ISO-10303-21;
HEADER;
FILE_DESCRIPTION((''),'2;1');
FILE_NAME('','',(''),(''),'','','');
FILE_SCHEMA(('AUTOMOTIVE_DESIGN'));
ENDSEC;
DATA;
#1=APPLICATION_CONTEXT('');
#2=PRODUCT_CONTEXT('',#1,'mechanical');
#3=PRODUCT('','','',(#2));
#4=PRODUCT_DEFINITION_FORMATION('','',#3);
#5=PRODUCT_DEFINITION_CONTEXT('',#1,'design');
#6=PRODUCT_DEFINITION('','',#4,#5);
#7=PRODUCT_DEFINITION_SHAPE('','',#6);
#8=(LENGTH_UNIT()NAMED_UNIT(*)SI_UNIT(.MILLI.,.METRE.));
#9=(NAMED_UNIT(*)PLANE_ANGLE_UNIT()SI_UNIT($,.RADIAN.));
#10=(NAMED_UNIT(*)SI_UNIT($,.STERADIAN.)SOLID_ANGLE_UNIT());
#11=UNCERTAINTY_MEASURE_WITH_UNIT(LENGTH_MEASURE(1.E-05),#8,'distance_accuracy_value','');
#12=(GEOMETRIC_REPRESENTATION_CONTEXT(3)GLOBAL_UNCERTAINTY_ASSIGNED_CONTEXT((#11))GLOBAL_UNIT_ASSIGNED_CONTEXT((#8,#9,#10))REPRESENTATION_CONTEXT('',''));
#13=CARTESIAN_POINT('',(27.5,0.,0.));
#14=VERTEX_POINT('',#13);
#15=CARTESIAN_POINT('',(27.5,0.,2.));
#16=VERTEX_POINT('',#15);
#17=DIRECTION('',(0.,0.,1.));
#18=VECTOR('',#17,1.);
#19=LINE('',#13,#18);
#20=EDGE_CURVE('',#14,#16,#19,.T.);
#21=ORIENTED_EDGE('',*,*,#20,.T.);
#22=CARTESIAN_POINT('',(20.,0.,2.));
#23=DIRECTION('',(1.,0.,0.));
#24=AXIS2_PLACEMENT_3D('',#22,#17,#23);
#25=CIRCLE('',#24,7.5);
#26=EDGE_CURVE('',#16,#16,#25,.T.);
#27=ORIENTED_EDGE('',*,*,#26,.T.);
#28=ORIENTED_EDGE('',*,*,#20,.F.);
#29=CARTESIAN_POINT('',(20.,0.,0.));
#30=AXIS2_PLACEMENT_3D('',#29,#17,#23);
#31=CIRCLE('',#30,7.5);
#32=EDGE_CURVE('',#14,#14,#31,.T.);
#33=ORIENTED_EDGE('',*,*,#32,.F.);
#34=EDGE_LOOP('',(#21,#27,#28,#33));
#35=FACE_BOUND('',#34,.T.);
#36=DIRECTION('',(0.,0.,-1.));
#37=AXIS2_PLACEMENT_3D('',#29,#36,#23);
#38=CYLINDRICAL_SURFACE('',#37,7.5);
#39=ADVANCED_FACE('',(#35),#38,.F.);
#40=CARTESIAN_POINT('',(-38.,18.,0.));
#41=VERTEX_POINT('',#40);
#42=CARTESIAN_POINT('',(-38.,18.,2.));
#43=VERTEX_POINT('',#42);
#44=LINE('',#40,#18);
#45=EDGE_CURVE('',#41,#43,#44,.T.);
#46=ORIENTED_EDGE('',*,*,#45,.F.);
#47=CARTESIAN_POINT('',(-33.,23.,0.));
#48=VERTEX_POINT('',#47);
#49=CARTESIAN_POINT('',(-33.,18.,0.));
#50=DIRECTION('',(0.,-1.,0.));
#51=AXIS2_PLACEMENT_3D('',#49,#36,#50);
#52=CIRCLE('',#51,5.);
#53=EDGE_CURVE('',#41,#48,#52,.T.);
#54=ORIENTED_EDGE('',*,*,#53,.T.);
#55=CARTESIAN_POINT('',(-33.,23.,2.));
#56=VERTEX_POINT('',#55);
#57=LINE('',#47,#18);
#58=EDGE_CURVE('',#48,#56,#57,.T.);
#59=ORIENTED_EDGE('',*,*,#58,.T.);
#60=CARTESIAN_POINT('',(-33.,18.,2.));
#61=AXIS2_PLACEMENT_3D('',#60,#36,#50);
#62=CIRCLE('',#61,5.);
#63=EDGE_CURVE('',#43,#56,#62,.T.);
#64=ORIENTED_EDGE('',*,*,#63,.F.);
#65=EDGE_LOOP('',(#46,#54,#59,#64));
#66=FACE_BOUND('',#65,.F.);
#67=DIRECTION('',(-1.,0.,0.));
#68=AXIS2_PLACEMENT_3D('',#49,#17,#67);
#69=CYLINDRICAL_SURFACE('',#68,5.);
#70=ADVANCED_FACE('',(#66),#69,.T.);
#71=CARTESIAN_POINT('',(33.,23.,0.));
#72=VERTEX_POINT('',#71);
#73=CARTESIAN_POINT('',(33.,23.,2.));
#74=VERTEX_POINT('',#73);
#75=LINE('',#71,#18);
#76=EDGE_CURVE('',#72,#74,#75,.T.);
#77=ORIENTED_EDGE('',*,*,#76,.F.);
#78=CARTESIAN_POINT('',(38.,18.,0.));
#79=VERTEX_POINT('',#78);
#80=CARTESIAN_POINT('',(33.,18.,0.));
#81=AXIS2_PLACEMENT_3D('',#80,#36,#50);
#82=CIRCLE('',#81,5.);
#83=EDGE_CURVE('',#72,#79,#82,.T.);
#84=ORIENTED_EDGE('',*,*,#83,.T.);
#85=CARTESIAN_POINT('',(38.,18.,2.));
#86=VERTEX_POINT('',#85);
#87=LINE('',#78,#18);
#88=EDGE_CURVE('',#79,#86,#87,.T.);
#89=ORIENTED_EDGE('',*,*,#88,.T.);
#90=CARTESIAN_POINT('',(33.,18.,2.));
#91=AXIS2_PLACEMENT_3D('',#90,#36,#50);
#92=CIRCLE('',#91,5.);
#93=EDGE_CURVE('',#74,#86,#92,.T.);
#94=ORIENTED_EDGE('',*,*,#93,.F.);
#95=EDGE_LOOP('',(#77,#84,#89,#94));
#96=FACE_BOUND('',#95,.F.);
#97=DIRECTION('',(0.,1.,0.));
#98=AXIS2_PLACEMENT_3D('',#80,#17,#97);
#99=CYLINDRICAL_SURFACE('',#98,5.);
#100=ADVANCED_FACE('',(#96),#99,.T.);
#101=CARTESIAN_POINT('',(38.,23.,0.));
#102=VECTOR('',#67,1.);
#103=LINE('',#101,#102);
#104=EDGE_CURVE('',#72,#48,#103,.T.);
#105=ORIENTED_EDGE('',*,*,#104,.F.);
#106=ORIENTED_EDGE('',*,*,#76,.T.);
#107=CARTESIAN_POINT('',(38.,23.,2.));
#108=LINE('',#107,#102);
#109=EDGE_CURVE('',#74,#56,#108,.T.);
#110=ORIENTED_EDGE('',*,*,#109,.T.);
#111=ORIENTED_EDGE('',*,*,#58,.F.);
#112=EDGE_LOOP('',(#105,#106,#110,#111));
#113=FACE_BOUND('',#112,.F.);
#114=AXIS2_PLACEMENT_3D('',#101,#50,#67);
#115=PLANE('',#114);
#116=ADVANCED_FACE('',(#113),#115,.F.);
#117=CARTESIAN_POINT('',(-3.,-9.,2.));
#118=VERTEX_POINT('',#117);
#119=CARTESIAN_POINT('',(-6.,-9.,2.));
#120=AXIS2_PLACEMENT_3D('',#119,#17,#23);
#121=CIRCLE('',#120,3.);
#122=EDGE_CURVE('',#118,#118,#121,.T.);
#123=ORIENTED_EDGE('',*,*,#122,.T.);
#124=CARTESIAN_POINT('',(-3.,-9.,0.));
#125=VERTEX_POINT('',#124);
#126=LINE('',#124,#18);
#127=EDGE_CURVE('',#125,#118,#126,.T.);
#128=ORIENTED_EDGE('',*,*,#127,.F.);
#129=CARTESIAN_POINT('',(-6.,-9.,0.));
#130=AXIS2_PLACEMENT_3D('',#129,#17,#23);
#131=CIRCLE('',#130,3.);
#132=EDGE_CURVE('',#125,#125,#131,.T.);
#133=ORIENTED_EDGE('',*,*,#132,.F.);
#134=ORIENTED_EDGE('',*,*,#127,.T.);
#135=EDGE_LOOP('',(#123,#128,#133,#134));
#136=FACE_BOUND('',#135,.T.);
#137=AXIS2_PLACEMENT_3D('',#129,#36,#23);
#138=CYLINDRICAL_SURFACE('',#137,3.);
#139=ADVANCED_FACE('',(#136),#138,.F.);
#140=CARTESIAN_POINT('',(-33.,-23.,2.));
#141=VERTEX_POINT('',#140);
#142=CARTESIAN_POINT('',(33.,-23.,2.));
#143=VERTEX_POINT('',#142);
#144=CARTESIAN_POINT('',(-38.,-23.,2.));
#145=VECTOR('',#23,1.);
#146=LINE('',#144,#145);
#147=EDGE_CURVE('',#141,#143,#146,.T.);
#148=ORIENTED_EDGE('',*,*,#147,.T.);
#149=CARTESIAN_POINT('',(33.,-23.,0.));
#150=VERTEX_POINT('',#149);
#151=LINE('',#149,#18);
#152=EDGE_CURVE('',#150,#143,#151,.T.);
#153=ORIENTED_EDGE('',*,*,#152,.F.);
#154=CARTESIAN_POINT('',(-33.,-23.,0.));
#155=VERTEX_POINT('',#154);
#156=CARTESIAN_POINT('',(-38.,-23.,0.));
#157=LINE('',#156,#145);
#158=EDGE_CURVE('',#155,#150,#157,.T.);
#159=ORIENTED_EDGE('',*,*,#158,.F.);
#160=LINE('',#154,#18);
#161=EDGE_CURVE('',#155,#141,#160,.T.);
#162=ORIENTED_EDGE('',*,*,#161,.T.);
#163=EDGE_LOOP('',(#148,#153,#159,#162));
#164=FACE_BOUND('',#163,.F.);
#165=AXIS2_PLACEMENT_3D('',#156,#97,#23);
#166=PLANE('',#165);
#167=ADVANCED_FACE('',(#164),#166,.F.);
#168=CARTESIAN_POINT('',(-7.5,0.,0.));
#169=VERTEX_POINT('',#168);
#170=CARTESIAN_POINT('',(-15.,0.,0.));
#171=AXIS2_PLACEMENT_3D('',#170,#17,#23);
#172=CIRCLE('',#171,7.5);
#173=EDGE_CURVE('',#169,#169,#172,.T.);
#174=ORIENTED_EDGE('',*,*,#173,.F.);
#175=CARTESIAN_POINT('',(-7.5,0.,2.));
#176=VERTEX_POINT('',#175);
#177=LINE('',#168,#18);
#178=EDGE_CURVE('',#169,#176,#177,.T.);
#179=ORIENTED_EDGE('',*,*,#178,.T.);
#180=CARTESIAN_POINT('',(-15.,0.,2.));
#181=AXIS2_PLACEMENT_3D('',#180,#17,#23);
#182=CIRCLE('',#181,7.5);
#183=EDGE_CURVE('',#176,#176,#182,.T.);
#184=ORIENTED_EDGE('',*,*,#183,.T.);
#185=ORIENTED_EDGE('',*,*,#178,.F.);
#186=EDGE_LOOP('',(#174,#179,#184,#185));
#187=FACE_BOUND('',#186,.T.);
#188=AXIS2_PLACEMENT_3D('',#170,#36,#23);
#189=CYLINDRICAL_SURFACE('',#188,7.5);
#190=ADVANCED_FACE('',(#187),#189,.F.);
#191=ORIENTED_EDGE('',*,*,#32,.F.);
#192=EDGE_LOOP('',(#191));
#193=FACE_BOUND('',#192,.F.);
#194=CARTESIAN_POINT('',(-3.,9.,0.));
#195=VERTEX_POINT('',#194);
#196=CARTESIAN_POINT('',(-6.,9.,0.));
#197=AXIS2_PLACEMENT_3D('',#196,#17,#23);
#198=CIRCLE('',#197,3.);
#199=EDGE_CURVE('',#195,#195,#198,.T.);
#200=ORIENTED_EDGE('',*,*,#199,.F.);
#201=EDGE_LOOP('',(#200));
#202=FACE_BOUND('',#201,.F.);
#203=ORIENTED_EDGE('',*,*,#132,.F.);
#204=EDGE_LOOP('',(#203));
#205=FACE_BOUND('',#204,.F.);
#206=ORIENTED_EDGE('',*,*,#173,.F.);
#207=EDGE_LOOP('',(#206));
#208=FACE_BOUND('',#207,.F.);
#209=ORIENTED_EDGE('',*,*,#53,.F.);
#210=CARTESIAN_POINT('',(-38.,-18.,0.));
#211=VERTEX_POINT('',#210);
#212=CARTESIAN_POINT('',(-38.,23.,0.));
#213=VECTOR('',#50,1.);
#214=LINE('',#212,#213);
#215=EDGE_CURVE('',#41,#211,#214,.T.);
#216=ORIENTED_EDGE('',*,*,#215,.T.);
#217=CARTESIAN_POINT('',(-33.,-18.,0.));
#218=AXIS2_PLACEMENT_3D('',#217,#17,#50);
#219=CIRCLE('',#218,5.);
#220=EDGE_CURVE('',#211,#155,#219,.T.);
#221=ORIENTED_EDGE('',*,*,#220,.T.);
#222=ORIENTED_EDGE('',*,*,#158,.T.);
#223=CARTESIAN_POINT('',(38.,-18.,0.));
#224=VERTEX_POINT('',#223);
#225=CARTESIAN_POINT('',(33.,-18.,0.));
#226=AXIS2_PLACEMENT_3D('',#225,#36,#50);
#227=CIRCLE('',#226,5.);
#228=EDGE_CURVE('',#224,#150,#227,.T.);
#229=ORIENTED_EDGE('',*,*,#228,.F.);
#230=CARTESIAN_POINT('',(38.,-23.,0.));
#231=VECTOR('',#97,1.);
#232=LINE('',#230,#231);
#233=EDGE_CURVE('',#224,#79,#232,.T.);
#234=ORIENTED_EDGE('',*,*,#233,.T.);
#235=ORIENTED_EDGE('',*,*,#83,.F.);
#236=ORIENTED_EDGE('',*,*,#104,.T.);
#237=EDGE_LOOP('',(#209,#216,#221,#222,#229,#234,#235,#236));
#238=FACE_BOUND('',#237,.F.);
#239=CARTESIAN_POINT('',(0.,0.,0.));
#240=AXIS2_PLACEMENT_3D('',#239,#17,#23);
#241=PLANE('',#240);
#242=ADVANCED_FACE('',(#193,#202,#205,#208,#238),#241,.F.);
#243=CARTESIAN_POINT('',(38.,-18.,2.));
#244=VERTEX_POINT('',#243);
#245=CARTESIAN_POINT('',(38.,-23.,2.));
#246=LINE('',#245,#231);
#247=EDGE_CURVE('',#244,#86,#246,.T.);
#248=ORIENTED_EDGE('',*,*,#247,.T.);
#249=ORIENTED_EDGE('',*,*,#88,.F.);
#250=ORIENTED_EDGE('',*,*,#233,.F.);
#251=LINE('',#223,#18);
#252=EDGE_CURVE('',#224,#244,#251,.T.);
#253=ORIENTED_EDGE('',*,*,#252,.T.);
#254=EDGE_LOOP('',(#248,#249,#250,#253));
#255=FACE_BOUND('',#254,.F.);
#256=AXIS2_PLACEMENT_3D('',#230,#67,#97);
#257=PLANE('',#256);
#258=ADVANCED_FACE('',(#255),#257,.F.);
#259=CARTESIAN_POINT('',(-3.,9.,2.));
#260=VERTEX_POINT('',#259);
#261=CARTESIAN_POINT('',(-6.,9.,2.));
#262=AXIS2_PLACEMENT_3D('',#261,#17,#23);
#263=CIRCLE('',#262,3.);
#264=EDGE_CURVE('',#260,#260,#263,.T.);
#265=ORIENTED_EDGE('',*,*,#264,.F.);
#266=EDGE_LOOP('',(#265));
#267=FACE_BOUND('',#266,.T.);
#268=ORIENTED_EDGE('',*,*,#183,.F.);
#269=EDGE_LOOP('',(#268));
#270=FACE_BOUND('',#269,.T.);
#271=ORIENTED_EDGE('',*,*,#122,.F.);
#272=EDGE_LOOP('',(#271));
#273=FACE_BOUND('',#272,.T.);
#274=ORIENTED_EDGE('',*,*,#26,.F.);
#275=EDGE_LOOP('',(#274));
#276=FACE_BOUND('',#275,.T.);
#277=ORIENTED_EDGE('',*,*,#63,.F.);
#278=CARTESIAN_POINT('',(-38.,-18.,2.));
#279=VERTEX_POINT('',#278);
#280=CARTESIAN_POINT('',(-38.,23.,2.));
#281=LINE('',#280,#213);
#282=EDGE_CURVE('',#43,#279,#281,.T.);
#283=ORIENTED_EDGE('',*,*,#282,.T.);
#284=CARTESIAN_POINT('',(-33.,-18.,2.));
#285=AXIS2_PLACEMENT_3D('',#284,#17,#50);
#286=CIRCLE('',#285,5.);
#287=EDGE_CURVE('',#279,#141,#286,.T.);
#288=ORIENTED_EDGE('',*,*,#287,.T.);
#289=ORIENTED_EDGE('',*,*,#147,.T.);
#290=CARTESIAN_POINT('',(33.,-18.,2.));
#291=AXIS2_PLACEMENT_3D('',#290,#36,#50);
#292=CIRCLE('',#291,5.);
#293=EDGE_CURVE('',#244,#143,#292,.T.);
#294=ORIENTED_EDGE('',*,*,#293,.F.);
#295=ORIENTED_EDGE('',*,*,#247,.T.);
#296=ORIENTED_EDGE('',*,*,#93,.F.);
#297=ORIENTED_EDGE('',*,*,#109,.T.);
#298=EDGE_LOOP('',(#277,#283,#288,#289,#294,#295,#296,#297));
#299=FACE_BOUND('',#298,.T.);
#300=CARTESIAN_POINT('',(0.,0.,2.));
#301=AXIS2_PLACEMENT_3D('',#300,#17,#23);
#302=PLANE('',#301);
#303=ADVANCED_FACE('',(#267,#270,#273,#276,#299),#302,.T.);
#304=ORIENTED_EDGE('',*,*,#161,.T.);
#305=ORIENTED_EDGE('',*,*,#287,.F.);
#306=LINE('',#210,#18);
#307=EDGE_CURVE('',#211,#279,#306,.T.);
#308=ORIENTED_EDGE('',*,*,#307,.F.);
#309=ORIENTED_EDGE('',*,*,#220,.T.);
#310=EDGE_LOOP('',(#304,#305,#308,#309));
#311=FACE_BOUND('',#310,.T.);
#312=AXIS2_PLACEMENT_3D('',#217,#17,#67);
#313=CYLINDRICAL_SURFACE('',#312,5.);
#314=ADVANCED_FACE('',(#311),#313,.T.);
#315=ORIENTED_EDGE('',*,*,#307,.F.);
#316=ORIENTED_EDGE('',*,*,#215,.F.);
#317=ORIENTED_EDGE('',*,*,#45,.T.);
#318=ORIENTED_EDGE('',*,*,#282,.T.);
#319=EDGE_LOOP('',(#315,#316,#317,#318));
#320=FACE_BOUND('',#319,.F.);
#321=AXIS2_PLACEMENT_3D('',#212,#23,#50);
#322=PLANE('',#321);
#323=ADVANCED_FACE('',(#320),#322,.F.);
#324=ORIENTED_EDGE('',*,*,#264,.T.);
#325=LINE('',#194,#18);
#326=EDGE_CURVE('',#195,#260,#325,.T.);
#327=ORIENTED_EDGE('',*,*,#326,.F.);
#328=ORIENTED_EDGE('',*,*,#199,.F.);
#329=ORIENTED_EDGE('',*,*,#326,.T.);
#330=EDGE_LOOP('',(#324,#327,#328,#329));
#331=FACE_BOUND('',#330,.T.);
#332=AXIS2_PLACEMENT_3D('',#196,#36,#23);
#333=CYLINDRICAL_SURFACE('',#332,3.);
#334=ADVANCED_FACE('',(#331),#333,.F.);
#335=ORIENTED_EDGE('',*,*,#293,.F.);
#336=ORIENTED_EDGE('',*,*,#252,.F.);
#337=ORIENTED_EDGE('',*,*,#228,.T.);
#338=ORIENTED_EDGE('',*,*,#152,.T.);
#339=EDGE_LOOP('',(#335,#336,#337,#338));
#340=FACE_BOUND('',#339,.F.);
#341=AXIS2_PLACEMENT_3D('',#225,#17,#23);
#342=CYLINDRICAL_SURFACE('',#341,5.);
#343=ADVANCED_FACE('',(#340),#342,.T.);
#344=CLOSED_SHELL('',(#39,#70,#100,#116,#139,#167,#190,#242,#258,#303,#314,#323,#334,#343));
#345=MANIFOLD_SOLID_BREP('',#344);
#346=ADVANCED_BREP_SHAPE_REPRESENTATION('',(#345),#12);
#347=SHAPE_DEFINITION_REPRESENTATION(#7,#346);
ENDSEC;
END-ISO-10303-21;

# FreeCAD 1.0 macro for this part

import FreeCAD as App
import Part
import Sketcher

V = App.Vector


def edges_at(feature, points):
    """Names of the edges that pass closest to the given points."""
    edges = feature.Shape.Edges
    near = lambda p: min(range(len(edges)), key=lambda i: edges[i].distToShape(Part.Vertex(*p))[0])
    return sorted({f"Edge{near(p) + 1}" for p in points})

doc = App.newDocument("Part")
body = doc.addObject("PartDesign::Body", "Body")

# Sketch on XY plane
sketch1 = doc.addObject("Sketcher::SketchObject", "Sketch")
body.addObject(sketch1)
sketch1.AttachmentSupport = (doc.XY_Plane, [""])
sketch1.MapMode = "FlatFace"
sketch1.addGeometry([
    Part.LineSegment(V(-38, 23, 0), V(-38, -23, 0)),  # 0
    Part.LineSegment(V(-38, -23, 0), V(38, -23, 0)),  # 1
    Part.LineSegment(V(38, -23, 0), V(38, 23, 0)),  # 2
    Part.LineSegment(V(38, 23, 0), V(-38, 23, 0)),  # 3
    Part.Circle(V(-6, -9, 0), V(0, 0, 1), 3),  # 4
    Part.Circle(V(-15, 0, 0), V(0, 0, 1), 7.5),  # 5
    Part.Circle(V(-6, 9, 0), V(0, 0, 1), 3),  # 6
    Part.Circle(V(20, 0, 0), V(0, 0, 1), 7.5),  # 7
], False)
sketch1.addConstraint([
    Sketcher.Constraint("Coincident", 0, 2, 1, 1),
    Sketcher.Constraint("Coincident", 1, 2, 2, 1),
    Sketcher.Constraint("Coincident", 2, 2, 3, 1),
    Sketcher.Constraint("Coincident", 3, 2, 0, 1),
    Sketcher.Constraint("Vertical", 0),
    Sketcher.Constraint("Horizontal", 1),
    Sketcher.Constraint("Vertical", 2),
    Sketcher.Constraint("Horizontal", 3),
    Sketcher.Constraint("Equal", 4, 6),
    Sketcher.Constraint("Equal", 5, 7),
    Sketcher.Constraint("Symmetric", 0, 2, 2, 2, -1, 1),
    Sketcher.Constraint("Symmetric", 4, 3, 6, 3, -1),
    Sketcher.Constraint("PointOnObject", 5, 3, -1),
    Sketcher.Constraint("PointOnObject", 7, 3, -1),
    Sketcher.Constraint("Diameter", 4, 6.0),
    Sketcher.Constraint("Diameter", 5, 15.0),
    Sketcher.Constraint("DistanceX", 1, 1, 1, 2, 76.0),
    Sketcher.Constraint("DistanceY", 0, 2, 0, 1, 46.0),
    Sketcher.Constraint("DistanceX", 4, 3, -1, 1, 6.0),
    Sketcher.Constraint("DistanceY", 4, 3, -1, 1, 9.0),
    Sketcher.Constraint("DistanceX", 5, 3, -1, 1, 15.0),
    Sketcher.Constraint("DistanceX", -1, 1, 7, 3, 20.0),
])
pad1 = doc.addObject("PartDesign::Pad", "Pad")
body.addObject(pad1)
pad1.Profile = sketch1
pad1.Length = 2
doc.recompute()

fillet = doc.addObject("PartDesign::Fillet", "Fillet")
body.addObject(fillet)
fillet.Base = (pad1, edges_at(pad1, [
    (-38, 23, 1),
    (38, 23, 1),
    (38, -23, 1),
    (-38, -23, 1),
]))
fillet.Radius = 5

doc.recompute()
